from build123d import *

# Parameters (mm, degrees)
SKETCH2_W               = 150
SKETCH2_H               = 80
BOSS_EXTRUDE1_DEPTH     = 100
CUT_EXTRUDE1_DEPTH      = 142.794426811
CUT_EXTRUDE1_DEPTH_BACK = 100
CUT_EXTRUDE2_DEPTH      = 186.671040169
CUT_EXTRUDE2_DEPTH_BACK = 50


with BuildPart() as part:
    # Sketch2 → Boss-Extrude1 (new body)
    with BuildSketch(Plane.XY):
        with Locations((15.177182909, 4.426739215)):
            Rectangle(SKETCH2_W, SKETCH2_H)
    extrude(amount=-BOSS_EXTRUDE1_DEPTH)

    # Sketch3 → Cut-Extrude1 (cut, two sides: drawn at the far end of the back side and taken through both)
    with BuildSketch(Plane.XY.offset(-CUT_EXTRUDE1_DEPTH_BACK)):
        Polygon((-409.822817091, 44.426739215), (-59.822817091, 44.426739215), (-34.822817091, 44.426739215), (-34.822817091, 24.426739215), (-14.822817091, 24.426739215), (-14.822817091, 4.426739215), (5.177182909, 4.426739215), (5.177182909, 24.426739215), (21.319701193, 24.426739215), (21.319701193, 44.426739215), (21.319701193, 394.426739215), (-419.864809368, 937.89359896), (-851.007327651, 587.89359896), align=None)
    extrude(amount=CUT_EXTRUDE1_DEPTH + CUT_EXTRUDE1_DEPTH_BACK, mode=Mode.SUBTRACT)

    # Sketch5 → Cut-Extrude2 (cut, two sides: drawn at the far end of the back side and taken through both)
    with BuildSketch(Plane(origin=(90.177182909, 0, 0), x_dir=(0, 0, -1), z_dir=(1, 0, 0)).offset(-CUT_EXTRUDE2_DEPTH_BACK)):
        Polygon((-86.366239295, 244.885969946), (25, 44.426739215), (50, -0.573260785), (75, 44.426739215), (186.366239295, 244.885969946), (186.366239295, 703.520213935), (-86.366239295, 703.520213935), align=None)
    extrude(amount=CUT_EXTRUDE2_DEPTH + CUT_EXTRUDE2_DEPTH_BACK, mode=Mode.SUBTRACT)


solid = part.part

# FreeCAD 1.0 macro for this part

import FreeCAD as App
import Part
import Sketcher
from FreeCAD import Vector


def add_polygon(sketch, points):
    """Adds a closed chain of lines whose ends are joined by coincident constraints."""
    first, n = sketch.GeometryCount, len(points)
    for a, b in zip(points, points[1:] + points[:1]):
        sketch.addGeometry(Part.LineSegment(App.Vector(*a, 0), App.Vector(*b, 0)), False)
    for i in range(n):
        sketch.addConstraint(Sketcher.Constraint("Coincident", first + i, 2, first + (i + 1) % n, 1))

doc = App.newDocument("Part")
body = doc.addObject("PartDesign::Body", "Body")

# Sketch on XY plane
sketch1 = doc.addObject("Sketcher::SketchObject", "Sketch")
body.addObject(sketch1)
sketch1.AttachmentSupport = (doc.XY_Plane, [""])
sketch1.MapMode = "FlatFace"
add_polygon(sketch1, [(-60, 44), (-60, -36), (90, -36), (90, 44)])  # lines 0-3
sketch1.addConstraint([
    Sketcher.Constraint("Vertical", 0),
    Sketcher.Constraint("Horizontal", 1),
    Sketcher.Constraint("Vertical", 2),
    Sketcher.Constraint("Horizontal", 3),
    Sketcher.Constraint("DistanceX", 1, 1, 1, 2, 150.0),
    Sketcher.Constraint("DistanceY", 0, 2, 0, 1, 80.0),
    Sketcher.Constraint("DistanceY", 0, 2, -1, 1, 35.573261),
    Sketcher.Constraint("DistanceX", 0, 2, -1, 1, 59.822817),
])
pad1 = doc.addObject("PartDesign::Pad", "Pad")
body.addObject(pad1)
pad1.Profile = sketch1
pad1.Length = 100
pad1.Reversed = True

# Sketch on XY plane
sketch2 = doc.addObject("Sketcher::SketchObject", "Sketch001")
body.addObject(sketch2)
sketch2.AttachmentSupport = (doc.XY_Plane, [""])
sketch2.MapMode = "FlatFace"
add_polygon(sketch2, [(-410, 44), (-35, 44), (-35, 24), (-15, 24), (-15, 4), (5, 4), (5, 24), (21, 24), (21, 394), (-420, 938), (-851, 588)])  # lines 0-10
sketch2.addConstraint([
    Sketcher.Constraint("Horizontal", 0),
    Sketcher.Constraint("Vertical", 1),
    Sketcher.Constraint("Horizontal", 2),
    Sketcher.Constraint("Vertical", 3),
    Sketcher.Constraint("Horizontal", 4),
    Sketcher.Constraint("Vertical", 5),
    Sketcher.Constraint("Horizontal", 6),
    Sketcher.Constraint("Vertical", 7),
    Sketcher.Constraint("Perpendicular", 8, 9),
    Sketcher.Constraint("Perpendicular", 9, 10),
    Sketcher.Constraint("Horizontal", 2, 2, 5, 2),
    Sketcher.Constraint("Equal", 2, 4),
    Sketcher.Constraint("Equal", 4, 1),
    Sketcher.Constraint("Equal", 1, 3),
    Sketcher.Constraint("Equal", 8, 10),
    Sketcher.Constraint("DistanceX", 0, 1, 0, 2, 375.0),
    Sketcher.Constraint("DistanceX", 2, 1, 2, 2, 20.0),
    Sketcher.Constraint("DistanceY", 7, 1, 7, 2, 370.0),
    Sketcher.Constraint("Distance", 8, 700.0),
    Sketcher.Constraint("DistanceX", 6, 1, 6, 2, 16.142518),
    Sketcher.Constraint("DistanceX", -1, 1, 6, 2, 21.319701),
    Sketcher.Constraint("DistanceY", -1, 1, 8, 2, 937.893599),
])
pocket1 = doc.addObject("PartDesign::Pocket", "Pocket")
body.addObject(pocket1)
pocket1.Profile = sketch2
pocket1.Type = "ThroughAll"
pocket1.Midplane = True

# Sketch on YZ plane
sketch3 = doc.addObject("Sketcher::SketchObject", "Sketch002")
body.addObject(sketch3)
sketch3.AttachmentSupport = (doc.YZ_Plane, [""])
sketch3.MapMode = "FlatFace"
sketch3.AttachmentOffset = App.Placement(Vector(0, 0, 90.177183), App.Rotation())
add_polygon(sketch3, [(245, 86), (-1, -50), (245, -186), (704, -186), (704, 86)])  # lines 0-4
sketch3.addConstraint([
    Sketcher.Constraint("Horizontal", 2),
    Sketcher.Constraint("Vertical", 3),
    Sketcher.Constraint("Horizontal", 4),
    Sketcher.Constraint("Vertical", 1, 2, 4, 2),
    Sketcher.Constraint("Equal", 0, 1),
    Sketcher.Constraint("DistanceY", 0, 2, -1, 1, 50.0),
    Sketcher.Constraint("DistanceY", 3, 1, 3, 2, 272.732479),
    Sketcher.Constraint("DistanceX", 2, 1, 2, 2, 458.634244),
    Sketcher.Constraint("DistanceX", 0, 2, -1, 1, 0.573261),
    Sketcher.Constraint("DistanceX", -1, 1, 1, 2, 244.88597),
])
pocket2 = doc.addObject("PartDesign::Pocket", "Pocket001")
body.addObject(pocket2)
pocket2.Profile = sketch3
pocket2.Type = "TwoLengths"
pocket2.Length = 186.67104
pocket2.Length2 = 50
pocket2.Reversed = True

doc.recompute()
